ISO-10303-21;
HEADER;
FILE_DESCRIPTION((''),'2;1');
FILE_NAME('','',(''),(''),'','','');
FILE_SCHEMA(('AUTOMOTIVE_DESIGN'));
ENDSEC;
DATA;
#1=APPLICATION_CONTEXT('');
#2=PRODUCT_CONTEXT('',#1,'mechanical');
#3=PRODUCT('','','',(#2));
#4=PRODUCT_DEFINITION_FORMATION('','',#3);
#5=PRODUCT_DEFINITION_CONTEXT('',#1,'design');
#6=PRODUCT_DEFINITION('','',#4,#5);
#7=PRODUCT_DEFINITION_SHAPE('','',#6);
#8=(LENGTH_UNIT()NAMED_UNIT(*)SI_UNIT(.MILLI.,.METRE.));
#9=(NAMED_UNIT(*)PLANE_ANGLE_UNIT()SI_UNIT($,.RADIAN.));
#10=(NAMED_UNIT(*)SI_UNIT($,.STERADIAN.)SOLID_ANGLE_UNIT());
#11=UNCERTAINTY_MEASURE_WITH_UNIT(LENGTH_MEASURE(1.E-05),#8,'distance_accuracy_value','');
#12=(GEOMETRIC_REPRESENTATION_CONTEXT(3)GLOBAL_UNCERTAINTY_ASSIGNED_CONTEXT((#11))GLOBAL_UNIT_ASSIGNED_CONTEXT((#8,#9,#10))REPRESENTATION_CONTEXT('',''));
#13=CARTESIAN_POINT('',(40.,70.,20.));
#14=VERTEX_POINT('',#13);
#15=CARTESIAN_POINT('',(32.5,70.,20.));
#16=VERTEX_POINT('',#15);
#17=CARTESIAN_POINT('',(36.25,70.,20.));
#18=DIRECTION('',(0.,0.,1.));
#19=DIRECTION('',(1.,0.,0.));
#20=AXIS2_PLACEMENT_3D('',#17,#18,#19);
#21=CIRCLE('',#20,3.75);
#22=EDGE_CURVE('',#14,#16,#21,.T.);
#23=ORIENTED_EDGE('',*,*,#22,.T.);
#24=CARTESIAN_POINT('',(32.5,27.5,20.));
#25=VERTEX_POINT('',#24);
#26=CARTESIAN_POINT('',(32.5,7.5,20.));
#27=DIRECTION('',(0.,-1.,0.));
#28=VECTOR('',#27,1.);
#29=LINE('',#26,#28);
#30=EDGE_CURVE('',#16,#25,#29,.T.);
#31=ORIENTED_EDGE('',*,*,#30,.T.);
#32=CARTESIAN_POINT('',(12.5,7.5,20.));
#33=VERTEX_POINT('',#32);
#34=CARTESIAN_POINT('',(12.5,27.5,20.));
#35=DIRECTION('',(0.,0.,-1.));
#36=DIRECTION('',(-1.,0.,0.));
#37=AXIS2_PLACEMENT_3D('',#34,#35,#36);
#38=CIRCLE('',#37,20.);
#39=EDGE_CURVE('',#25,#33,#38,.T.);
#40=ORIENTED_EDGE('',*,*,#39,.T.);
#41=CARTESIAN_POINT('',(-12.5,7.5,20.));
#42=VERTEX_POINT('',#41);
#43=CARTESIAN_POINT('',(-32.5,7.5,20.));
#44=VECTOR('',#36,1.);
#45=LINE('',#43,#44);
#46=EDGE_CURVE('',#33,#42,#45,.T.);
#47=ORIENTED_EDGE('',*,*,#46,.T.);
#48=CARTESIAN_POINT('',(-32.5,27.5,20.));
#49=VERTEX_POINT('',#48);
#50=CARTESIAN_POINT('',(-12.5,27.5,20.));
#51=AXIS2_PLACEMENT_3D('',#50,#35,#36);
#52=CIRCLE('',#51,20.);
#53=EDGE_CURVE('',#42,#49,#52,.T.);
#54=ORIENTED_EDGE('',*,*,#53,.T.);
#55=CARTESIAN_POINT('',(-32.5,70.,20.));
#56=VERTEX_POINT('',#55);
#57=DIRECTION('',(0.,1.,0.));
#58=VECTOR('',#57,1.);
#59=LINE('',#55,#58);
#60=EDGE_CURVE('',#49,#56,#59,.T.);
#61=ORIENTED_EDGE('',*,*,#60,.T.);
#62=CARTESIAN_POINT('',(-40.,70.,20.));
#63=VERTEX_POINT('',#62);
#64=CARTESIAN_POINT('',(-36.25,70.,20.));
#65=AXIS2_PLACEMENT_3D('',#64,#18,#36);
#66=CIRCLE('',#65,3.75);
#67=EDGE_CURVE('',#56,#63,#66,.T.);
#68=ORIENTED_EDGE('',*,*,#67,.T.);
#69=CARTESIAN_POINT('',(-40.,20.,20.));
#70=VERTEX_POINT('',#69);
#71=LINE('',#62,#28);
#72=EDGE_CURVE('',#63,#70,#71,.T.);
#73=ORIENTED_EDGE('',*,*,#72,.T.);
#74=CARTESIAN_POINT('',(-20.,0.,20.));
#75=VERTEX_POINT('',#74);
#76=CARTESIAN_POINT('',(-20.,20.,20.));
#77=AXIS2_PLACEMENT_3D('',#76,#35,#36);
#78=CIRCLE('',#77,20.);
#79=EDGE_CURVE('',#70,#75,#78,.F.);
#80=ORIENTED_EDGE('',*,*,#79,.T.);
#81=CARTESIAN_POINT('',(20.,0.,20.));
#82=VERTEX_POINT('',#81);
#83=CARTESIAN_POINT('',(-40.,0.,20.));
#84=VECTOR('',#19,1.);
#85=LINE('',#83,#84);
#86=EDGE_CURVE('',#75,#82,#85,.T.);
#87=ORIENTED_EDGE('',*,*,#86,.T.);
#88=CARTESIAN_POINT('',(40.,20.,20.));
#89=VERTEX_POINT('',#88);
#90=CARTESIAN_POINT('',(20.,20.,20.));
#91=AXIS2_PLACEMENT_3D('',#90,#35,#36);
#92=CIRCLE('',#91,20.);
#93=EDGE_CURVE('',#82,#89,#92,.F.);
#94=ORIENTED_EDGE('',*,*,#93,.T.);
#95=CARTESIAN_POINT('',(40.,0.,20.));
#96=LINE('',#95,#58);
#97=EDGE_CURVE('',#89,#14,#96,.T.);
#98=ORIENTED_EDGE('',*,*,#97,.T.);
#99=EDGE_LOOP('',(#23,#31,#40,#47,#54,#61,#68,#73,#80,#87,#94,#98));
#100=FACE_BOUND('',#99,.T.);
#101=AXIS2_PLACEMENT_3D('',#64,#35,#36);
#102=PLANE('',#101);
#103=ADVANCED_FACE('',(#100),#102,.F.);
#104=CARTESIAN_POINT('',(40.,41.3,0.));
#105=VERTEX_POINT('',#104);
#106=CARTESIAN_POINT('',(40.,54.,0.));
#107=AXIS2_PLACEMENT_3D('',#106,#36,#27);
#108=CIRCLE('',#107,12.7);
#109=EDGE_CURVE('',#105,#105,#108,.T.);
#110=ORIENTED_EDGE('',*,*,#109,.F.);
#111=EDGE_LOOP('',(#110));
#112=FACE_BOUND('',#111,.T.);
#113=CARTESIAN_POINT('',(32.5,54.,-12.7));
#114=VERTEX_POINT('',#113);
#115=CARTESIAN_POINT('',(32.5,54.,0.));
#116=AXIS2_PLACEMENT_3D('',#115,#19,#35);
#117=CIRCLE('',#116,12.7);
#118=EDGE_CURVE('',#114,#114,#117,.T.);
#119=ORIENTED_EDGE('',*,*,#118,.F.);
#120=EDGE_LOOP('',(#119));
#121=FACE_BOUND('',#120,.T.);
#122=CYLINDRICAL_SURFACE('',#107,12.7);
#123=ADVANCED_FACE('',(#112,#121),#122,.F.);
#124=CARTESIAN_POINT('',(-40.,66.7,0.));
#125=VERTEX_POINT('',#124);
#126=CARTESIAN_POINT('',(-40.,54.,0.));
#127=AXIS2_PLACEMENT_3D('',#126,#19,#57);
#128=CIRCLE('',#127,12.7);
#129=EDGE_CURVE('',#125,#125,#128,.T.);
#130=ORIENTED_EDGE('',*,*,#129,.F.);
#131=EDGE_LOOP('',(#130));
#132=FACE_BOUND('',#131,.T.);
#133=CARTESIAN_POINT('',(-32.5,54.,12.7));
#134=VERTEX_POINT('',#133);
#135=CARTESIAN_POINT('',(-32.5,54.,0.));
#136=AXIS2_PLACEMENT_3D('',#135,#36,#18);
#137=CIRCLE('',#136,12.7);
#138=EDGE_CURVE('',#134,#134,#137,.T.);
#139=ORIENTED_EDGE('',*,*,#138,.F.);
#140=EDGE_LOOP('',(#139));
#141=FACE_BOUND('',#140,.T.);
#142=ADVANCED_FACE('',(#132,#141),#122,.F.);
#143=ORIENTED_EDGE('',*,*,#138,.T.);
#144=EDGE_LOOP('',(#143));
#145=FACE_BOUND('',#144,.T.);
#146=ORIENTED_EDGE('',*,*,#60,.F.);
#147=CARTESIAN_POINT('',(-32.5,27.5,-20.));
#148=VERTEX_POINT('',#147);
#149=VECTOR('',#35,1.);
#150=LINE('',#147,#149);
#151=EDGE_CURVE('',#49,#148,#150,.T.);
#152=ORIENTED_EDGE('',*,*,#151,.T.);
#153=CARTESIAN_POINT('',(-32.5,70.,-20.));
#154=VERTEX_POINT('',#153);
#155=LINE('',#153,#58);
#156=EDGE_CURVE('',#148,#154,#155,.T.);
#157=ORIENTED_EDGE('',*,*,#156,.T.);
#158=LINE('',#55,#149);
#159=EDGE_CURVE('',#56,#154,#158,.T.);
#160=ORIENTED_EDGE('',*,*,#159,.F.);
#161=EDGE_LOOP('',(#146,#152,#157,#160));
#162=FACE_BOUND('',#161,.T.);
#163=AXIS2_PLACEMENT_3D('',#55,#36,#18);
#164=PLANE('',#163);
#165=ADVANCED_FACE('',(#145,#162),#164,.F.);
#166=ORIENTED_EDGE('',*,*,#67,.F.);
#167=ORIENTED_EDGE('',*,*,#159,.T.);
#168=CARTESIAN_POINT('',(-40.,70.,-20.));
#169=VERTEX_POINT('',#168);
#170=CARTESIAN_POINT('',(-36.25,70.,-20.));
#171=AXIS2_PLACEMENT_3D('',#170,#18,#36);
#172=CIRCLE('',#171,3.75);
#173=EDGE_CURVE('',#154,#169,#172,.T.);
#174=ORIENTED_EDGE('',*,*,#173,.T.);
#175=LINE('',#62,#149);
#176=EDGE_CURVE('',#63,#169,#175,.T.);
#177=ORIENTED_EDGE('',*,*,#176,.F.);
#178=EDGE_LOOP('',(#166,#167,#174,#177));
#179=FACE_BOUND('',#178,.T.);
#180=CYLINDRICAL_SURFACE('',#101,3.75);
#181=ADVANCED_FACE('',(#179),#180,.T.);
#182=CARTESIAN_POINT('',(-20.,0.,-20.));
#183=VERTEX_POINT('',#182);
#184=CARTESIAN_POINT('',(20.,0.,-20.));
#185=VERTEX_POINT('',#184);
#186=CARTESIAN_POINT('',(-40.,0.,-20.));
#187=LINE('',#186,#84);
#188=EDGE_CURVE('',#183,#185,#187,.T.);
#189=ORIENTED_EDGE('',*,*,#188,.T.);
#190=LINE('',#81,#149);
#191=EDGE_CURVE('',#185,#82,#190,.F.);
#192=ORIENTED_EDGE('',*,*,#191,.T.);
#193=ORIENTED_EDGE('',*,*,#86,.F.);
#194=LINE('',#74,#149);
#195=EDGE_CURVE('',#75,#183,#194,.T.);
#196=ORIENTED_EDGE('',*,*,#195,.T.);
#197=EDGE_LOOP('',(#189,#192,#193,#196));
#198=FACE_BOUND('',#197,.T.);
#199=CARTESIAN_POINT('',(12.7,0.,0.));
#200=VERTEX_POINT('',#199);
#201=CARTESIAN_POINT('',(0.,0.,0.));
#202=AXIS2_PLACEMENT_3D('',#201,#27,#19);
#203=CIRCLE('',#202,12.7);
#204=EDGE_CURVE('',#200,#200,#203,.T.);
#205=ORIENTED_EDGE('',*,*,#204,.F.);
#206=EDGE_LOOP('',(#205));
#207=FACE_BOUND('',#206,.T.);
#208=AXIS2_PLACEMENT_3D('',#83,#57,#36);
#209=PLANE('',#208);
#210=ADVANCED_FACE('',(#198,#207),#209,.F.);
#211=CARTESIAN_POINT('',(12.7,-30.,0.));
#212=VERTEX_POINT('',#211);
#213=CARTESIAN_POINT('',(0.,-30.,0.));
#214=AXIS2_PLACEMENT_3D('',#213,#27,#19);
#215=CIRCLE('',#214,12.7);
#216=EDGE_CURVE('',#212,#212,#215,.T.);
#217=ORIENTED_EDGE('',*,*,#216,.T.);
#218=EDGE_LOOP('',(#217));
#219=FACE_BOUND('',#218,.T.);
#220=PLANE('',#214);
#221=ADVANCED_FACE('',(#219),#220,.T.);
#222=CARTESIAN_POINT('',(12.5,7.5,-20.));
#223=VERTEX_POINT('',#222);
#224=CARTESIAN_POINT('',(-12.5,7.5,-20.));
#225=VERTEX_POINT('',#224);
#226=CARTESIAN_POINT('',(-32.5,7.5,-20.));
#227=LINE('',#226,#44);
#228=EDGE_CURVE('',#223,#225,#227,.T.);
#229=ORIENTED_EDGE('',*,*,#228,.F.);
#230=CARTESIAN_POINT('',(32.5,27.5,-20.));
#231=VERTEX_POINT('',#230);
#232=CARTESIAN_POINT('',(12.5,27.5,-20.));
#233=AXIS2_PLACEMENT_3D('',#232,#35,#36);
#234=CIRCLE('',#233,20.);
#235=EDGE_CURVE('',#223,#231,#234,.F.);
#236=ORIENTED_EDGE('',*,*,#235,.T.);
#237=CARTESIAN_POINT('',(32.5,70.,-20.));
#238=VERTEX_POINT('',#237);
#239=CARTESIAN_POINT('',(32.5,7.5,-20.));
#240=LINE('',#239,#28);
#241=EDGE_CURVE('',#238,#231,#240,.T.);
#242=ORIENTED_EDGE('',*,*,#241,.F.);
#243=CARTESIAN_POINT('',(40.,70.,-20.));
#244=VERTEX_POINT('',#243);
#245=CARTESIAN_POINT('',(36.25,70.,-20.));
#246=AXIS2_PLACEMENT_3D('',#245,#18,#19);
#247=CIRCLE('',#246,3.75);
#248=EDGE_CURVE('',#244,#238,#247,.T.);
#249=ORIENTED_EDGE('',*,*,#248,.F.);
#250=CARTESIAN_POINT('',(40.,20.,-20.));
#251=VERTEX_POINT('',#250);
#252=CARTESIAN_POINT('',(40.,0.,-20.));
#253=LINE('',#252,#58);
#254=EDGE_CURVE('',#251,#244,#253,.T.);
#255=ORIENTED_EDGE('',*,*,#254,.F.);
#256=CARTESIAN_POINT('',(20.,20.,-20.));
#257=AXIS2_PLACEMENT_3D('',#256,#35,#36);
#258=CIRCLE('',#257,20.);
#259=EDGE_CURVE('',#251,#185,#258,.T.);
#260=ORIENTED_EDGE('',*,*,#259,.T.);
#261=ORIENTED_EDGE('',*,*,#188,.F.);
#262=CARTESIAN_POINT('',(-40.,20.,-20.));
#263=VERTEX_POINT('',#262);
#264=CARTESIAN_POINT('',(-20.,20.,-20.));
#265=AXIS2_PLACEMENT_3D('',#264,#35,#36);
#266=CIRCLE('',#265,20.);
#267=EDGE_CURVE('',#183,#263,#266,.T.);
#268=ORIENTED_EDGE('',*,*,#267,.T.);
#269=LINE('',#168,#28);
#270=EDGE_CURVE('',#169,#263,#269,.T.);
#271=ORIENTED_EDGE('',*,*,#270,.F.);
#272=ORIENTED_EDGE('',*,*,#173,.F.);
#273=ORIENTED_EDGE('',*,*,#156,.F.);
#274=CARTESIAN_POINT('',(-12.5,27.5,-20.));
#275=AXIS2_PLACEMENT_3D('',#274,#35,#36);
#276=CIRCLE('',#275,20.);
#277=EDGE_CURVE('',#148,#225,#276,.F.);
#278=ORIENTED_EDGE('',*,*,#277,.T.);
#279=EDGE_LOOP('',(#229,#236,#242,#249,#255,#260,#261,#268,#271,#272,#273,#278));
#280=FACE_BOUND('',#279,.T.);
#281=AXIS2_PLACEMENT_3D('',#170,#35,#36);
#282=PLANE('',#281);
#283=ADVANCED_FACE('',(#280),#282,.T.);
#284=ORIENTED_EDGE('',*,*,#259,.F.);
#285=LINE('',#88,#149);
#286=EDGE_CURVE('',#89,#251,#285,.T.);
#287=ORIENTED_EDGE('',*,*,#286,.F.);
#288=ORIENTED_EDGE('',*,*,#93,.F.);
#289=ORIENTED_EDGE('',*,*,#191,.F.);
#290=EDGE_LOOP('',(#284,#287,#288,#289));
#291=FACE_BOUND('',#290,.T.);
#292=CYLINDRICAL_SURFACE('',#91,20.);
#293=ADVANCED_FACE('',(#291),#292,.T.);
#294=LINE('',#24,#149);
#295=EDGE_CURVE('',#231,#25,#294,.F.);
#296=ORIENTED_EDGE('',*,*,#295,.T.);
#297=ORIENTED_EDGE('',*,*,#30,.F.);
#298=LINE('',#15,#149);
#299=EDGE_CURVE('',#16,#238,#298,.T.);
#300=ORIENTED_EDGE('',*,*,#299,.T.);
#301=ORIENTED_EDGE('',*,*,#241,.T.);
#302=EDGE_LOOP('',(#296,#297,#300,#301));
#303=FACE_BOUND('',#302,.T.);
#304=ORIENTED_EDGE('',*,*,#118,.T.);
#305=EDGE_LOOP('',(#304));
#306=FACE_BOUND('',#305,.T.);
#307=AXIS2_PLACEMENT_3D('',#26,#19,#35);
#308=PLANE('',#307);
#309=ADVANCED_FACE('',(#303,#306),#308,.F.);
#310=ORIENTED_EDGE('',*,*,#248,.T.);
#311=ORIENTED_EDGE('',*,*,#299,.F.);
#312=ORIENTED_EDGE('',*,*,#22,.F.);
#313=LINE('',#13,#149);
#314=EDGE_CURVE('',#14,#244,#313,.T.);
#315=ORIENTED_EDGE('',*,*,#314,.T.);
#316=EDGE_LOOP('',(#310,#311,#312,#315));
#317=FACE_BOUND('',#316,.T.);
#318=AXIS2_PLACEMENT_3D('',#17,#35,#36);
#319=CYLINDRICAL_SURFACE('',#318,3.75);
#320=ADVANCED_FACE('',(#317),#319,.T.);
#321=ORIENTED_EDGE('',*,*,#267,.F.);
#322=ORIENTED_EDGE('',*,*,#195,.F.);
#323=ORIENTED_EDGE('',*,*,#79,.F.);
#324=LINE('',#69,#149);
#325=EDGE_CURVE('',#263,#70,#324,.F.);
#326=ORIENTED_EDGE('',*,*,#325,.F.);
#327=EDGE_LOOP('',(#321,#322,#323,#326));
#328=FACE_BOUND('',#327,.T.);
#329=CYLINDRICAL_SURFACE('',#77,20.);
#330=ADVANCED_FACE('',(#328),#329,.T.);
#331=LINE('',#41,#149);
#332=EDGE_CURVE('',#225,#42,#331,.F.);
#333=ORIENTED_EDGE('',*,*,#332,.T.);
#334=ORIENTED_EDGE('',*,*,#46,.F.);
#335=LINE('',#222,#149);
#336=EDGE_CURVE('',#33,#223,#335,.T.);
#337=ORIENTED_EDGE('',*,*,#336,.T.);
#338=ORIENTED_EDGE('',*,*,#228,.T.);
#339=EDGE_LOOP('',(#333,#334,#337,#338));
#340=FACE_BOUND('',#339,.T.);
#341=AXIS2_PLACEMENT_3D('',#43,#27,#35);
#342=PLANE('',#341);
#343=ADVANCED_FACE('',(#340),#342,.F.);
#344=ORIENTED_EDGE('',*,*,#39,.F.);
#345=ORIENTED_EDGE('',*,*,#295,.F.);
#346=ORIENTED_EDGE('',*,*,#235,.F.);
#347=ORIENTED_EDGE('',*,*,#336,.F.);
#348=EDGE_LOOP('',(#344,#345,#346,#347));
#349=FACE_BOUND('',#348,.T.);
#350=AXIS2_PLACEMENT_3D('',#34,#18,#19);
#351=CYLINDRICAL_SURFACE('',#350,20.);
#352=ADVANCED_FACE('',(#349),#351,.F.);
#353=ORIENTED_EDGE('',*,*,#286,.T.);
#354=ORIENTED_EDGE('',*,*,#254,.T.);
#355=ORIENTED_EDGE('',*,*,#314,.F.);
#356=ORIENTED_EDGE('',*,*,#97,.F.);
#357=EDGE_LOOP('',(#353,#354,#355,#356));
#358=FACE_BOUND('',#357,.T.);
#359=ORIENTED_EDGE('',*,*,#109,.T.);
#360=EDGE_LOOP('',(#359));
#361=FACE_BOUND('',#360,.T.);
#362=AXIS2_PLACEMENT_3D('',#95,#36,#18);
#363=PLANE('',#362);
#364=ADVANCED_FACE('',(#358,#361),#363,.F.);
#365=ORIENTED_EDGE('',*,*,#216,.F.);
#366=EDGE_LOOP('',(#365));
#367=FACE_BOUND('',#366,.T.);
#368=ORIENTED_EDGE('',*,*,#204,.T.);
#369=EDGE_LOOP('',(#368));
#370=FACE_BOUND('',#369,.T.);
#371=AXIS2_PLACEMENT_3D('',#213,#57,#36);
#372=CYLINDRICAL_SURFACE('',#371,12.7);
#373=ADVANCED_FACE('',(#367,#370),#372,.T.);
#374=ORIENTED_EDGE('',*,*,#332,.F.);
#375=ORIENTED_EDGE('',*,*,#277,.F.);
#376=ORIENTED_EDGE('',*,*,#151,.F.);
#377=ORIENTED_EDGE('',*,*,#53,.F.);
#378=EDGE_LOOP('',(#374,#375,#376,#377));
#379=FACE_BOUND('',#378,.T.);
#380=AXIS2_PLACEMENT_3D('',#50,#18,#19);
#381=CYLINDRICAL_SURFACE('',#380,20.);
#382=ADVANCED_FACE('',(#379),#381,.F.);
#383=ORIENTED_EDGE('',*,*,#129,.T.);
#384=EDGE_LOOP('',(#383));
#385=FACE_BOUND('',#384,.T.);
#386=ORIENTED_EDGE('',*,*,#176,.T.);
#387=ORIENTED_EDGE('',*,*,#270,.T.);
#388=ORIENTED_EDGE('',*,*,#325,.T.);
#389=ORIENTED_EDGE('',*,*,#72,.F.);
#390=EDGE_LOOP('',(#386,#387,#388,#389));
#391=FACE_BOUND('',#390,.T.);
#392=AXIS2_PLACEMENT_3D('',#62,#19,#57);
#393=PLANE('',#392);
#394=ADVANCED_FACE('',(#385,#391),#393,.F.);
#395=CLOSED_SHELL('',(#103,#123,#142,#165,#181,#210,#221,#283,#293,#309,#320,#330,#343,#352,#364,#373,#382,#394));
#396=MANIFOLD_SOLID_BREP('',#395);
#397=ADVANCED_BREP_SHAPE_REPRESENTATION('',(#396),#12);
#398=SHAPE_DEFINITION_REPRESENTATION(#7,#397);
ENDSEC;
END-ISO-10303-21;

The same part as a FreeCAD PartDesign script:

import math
import FreeCAD as App
import Part
import Sketcher

V = App.Vector


def edges_at(feature, points):
    """Names of the edges that pass closest to the given points."""
    edges = feature.Shape.Edges
    near = lambda p: min(range(len(edges)), key=lambda i: edges[i].distToShape(Part.Vertex(*p))[0])
    return sorted({f"Edge{near(p) + 1}" for p in points})

doc = App.newDocument("Part")
body = doc.addObject("PartDesign::Body", "Body")

# Sketch on XY plane
sketch1 = doc.addObject("Sketcher::SketchObject", "Sketch")
body.addObject(sketch1)
sketch1.AttachmentSupport = (doc.XY_Plane, [""])
sketch1.MapMode = "FlatFace"
sketch1.addGeometry(Part.LineSegment(V(-40, 70, 0), V(-40, 0, 0)), False)
sketch1.addGeometry(Part.LineSegment(V(-40, 0, 0), V(40, 0, 0)), False)
sketch1.addGeometry(Part.LineSegment(V(40, 0, 0), V(40, 70, 0)), False)
sketch1.addGeometry(Part.ArcOfCircle(Part.Circle(V(36.25, 70, 0), V(0, 0, 1), 3.75), math.radians(0), math.radians(180)), False)
sketch1.addGeometry(Part.LineSegment(V(32.5, 70, 0), V(32.5, 7.5, 0)), False)
sketch1.addGeometry(Part.LineSegment(V(32.5, 7.5, 0), V(-32.5, 7.5, 0)), False)
sketch1.addGeometry(Part.LineSegment(V(-32.5, 7.5, 0), V(-32.5, 70, 0)), False)
sketch1.addGeometry(Part.ArcOfCircle(Part.Circle(V(-36.25, 70, 0), V(0, 0, 1), 3.75), math.radians(0), math.radians(180)), False)
sketch1.addConstraint(Sketcher.Constraint("Coincident", 0, 2, 1, 1))
sketch1.addConstraint(Sketcher.Constraint("Coincident", 1, 2, 2, 1))
sketch1.addConstraint(Sketcher.Constraint("Tangent", 2, 2, 3, 1))
sketch1.addConstraint(Sketcher.Constraint("Tangent", 3, 2, 4, 1))
sketch1.addConstraint(Sketcher.Constraint("Coincident", 4, 2, 5, 1))
sketch1.addConstraint(Sketcher.Constraint("Coincident", 5, 2, 6, 1))
sketch1.addConstraint(Sketcher.Constraint("Tangent", 6, 2, 7, 1))
sketch1.addConstraint(Sketcher.Constraint("Tangent", 7, 2, 0, 1))
sketch1.addConstraint(Sketcher.Constraint("Vertical", 0))
sketch1.addConstraint(Sketcher.Constraint("Horizontal", 1))
sketch1.addConstraint(Sketcher.Constraint("Vertical", 2))
sketch1.addConstraint(Sketcher.Constraint("Vertical", 4))
sketch1.addConstraint(Sketcher.Constraint("Horizontal", 5))
sketch1.addConstraint(Sketcher.Constraint("Vertical", 6))
sketch1.addConstraint(Sketcher.Constraint("Equal", 3, 7))
sketch1.addConstraint(Sketcher.Constraint("Symmetric", 0, 2, 1, 2, -1, 1))
sketch1.addConstraint(Sketcher.Constraint("Horizontal", 3, 3, 7, 3))
sketch1.addConstraint(Sketcher.Constraint("DistanceX", 1, 1, 1, 2, 80.0))
sketch1.addConstraint(Sketcher.Constraint("DistanceX", 5, 2, 5, 1, 65.0))
sketch1.addConstraint(Sketcher.Constraint("DistanceY", 0, 2, 0, 1, 70.0))
sketch1.addConstraint(Sketcher.Constraint("DistanceY", 4, 2, 4, 1, 62.5))
pad1 = doc.addObject("PartDesign::Pad", "Pad")
body.addObject(pad1)
pad1.Profile = sketch1
pad1.Length = 40
pad1.Midplane = True

# Sketch on XZ plane
sketch2 = doc.addObject("Sketcher::SketchObject", "Sketch001")
body.addObject(sketch2)
sketch2.AttachmentSupport = (doc.XZ_Plane, [""])
sketch2.MapMode = "FlatFace"
sketch2.addGeometry(Part.Circle(V(0, 0, 0), V(0, 0, 1), 12.7), False)
sketch2.addConstraint(Sketcher.Constraint("Coincident", 0, 3, -1, 1))
sketch2.addConstraint(Sketcher.Constraint("Diameter", 0, 25.4))
pad2 = doc.addObject("PartDesign::Pad", "Pad001")
body.addObject(pad2)
pad2.Profile = sketch2
pad2.Length = 30
doc.recompute()

fillet = doc.addObject("PartDesign::Fillet", "Fillet")
body.addObject(fillet)
fillet.Base = (pad2, edges_at(pad2, [
    (-32.5, 7.5, 0),
    (32.5, 7.5, 0),
    (40, 0, 0),
    (-40, 0, 0),
]))
fillet.Radius = 20

# Sketch on YZ plane
sketch3 = doc.addObject("Sketcher::SketchObject", "Sketch002")
body.addObject(sketch3)
sketch3.AttachmentSupport = (doc.YZ_Plane, [""])
sketch3.MapMode = "FlatFace"
sketch3.AttachmentOffset = App.Placement(V(0, 0, -40), App.Rotation())
sketch3.addGeometry(Part.Circle(V(54, 0, 0), V(0, 0, 1), 12.7), False)
sketch3.addConstraint(Sketcher.Constraint("PointOnObject", 0, 3, -1))
sketch3.addConstraint(Sketcher.Constraint("Diameter", 0, 25.4))
sketch3.addConstraint(Sketcher.Constraint("DistanceX", -1, 1, 0, 3, 54.0))
pocket1 = doc.addObject("PartDesign::Pocket", "Pocket")
body.addObject(pocket1)
pocket1.Profile = sketch3
pocket1.Type = "ThroughAll"
pocket1.Midplane = True

doc.recompute()
